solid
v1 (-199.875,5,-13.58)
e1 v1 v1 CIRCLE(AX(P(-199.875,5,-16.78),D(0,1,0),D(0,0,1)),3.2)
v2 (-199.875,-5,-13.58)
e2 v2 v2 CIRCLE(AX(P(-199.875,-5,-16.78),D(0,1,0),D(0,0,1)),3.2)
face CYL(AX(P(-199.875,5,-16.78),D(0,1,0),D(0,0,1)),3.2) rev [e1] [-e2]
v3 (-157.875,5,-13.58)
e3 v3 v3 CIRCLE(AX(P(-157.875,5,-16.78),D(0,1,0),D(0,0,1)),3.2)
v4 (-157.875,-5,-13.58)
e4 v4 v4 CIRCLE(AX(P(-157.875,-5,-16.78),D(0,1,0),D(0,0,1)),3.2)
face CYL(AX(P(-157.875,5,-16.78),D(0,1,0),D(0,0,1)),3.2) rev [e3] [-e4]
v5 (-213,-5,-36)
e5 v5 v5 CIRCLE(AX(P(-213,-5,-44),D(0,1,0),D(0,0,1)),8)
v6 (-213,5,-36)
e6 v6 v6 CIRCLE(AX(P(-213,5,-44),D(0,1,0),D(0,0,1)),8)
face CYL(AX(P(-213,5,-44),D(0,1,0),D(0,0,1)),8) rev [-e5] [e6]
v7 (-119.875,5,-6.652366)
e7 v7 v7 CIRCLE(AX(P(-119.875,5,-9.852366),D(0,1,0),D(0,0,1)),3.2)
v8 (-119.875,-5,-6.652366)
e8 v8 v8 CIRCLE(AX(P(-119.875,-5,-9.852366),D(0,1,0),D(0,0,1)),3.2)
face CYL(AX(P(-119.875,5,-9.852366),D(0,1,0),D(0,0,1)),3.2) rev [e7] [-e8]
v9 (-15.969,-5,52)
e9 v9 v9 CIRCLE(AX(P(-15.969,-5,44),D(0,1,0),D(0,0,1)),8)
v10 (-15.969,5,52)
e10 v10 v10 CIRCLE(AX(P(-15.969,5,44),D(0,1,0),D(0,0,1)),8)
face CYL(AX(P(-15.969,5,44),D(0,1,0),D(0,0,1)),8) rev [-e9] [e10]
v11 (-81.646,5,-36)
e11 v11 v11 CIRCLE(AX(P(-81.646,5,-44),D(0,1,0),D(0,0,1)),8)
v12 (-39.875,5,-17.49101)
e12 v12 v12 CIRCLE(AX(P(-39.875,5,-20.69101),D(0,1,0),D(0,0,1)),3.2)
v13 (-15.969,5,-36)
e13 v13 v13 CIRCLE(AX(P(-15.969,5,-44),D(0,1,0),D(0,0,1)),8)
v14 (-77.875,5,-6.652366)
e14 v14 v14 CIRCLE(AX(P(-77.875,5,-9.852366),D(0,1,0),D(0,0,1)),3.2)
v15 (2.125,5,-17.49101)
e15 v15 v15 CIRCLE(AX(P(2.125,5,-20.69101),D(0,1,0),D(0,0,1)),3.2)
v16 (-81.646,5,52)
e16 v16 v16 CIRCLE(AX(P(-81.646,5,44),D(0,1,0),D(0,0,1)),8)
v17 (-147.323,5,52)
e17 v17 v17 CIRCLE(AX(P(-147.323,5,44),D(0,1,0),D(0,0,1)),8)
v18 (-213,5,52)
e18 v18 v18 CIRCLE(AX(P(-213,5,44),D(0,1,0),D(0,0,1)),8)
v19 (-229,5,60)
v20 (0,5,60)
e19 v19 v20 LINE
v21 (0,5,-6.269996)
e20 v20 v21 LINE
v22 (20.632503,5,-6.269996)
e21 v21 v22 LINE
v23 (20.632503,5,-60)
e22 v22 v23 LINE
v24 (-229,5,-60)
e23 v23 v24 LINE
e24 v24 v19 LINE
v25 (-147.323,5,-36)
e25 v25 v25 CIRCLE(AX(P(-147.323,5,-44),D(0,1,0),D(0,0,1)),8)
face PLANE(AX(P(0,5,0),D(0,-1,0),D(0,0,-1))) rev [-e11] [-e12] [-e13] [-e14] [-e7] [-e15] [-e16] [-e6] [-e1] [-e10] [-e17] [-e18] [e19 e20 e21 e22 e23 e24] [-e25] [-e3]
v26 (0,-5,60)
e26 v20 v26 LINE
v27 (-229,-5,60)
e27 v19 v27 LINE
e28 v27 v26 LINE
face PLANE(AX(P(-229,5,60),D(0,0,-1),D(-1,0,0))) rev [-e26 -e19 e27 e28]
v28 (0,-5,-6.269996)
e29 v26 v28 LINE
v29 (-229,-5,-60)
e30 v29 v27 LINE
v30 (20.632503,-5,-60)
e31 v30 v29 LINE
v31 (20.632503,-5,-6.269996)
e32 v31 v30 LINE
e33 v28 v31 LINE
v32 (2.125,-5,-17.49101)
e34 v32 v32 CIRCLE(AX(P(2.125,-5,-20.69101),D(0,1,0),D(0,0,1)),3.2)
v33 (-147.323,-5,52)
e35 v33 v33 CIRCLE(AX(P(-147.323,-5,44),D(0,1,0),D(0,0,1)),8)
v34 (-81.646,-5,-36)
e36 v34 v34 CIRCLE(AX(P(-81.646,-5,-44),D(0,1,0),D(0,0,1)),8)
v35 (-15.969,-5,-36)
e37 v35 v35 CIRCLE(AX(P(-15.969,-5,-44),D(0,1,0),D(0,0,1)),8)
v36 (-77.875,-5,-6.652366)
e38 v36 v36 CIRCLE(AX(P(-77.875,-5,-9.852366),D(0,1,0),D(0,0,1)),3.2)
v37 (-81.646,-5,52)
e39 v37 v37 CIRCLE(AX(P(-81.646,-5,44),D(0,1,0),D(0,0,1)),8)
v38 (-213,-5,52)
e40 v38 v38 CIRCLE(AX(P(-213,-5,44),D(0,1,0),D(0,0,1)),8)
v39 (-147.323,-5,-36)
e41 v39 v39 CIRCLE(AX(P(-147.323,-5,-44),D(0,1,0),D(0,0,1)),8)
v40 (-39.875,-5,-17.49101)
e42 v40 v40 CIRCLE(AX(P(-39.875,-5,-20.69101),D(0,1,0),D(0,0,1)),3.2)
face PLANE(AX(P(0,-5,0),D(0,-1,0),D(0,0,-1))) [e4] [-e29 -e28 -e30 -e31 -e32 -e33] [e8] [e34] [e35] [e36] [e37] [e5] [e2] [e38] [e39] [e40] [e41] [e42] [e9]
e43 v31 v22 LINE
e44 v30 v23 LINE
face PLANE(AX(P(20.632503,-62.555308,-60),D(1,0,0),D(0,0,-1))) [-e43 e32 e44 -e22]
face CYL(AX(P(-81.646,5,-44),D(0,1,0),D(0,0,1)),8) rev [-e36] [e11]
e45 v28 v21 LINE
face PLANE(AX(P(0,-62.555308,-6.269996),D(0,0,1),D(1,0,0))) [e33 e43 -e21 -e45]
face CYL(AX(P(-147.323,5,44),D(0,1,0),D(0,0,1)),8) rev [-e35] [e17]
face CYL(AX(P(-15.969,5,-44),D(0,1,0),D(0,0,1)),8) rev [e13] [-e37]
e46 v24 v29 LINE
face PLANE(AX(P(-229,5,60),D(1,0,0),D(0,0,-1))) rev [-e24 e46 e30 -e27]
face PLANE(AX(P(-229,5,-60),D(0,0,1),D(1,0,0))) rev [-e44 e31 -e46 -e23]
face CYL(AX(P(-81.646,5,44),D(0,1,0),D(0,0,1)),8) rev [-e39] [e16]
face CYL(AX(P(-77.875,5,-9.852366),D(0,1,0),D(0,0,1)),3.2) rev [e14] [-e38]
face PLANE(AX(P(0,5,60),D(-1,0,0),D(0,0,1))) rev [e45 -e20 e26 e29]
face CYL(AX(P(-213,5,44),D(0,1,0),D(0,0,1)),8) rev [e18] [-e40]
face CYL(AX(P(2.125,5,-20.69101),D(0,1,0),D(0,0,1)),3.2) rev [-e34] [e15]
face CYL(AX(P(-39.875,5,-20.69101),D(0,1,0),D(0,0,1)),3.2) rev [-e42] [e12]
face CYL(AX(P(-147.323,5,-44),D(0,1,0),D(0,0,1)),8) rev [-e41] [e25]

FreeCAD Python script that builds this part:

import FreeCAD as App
import Part
import Sketcher

doc = App.newDocument("Part")
body = doc.addObject("PartDesign::Body", "Body")

sketch1 = body.newObject("Sketcher::SketchObject", "Sketch")
sketch1.AttachmentSupport = (doc.getObject("XZ_Plane"), [""])
sketch1.MapMode = "FlatFace"
sketch1.addGeometry(Part.LineSegment(App.Vector(-229, -60, 0), App.Vector(-229, 60, 0)), False)
sketch1.addGeometry(Part.LineSegment(App.Vector(-229, 60, 0), App.Vector(0, 60, 0)), False)
sketch1.addGeometry(Part.LineSegment(App.Vector(0, 60, 0), App.Vector(0, -60, 0)), False)
sketch1.addGeometry(Part.LineSegment(App.Vector(0, -60, 0), App.Vector(-229, -60, 0)), False)
sketch1.addConstraint(Sketcher.Constraint("Coincident", 0, 2, 1, 1))
sketch1.addConstraint(Sketcher.Constraint("Coincident", 1, 2, 2, 1))
sketch1.addConstraint(Sketcher.Constraint("Coincident", 2, 2, 3, 1))
sketch1.addConstraint(Sketcher.Constraint("Coincident", 3, 2, 0, 1))
sketch1.addConstraint(Sketcher.Constraint("Vertical", 0))
sketch1.addConstraint(Sketcher.Constraint("Horizontal", 1))
sketch1.addConstraint(Sketcher.Constraint("Vertical", 2))
sketch1.addConstraint(Sketcher.Constraint("Horizontal", 3))
sketch1.addConstraint(Sketcher.Constraint("Symmetric", 1, 2, 2, 2, -1, 1))
sketch1.addConstraint(Sketcher.Constraint("DistanceX", 1, 1, 1, 2, 229.0))
sketch1.addConstraint(Sketcher.Constraint("DistanceY", 0, 1, 0, 2, 120.0))
pad1 = body.newObject("PartDesign::Pad", "Pad")
pad1.Profile = sketch1
pad1.Length = 10
pad1.Midplane = True

sketch2 = body.newObject("Sketcher::SketchObject", "Sketch001")
sketch2.AttachmentSupport = (doc.getObject("XZ_Plane"), [""])
sketch2.MapMode = "FlatFace"
sketch2.AttachmentOffset = App.Placement(App.Vector(0, 0, -5), App.Rotation())
sketch2.addGeometry(Part.LineSegment(App.Vector(0, -60, 0), App.Vector(0, -6, 0)), False)
sketch2.addGeometry(Part.LineSegment(App.Vector(0, -6, 0), App.Vector(21, -6, 0)), False)
sketch2.addGeometry(Part.LineSegment(App.Vector(21, -6, 0), App.Vector(21, -60, 0)), False)
sketch2.addGeometry(Part.LineSegment(App.Vector(21, -60, 0), App.Vector(0, -60, 0)), False)
sketch2.addConstraint(Sketcher.Constraint("Coincident", 0, 2, 1, 1))
sketch2.addConstraint(Sketcher.Constraint("Coincident", 1, 2, 2, 1))
sketch2.addConstraint(Sketcher.Constraint("Coincident", 2, 2, 3, 1))
sketch2.addConstraint(Sketcher.Constraint("Coincident", 3, 2, 0, 1))
sketch2.addConstraint(Sketcher.Constraint("Vertical", 0))
sketch2.addConstraint(Sketcher.Constraint("Horizontal", 1))
sketch2.addConstraint(Sketcher.Constraint("Vertical", 2))
sketch2.addConstraint(Sketcher.Constraint("Horizontal", 3))
sketch2.addConstraint(Sketcher.Constraint("PointOnObject", 0, 2, -2))
sketch2.addConstraint(Sketcher.Constraint("DistanceY", 2, 2, -1, 1, 60.0))
sketch2.addConstraint(Sketcher.Constraint("DistanceX", 1, 1, 1, 2, 20.632503))
sketch2.addConstraint(Sketcher.Constraint("DistanceY", 0, 1, 0, 2, 53.730004))
pad2 = body.newObject("PartDesign::Pad", "Pad001")
pad2.Profile = sketch2
pad2.Length = 10

sketch3 = body.newObject("Sketcher::SketchObject", "Sketch002")
sketch3.AttachmentSupport = (doc.getObject("XZ_Plane"), [""])
sketch3.MapMode = "FlatFace"
sketch3.AttachmentOffset = App.Placement(App.Vector(0, 0, -5), App.Rotation())
sketch3.addGeometry(Part.Circle(App.Vector(-213, -44, 0), App.Vector(0, 0, 1), 8), False)
sketch3.addGeometry(Part.Circle(App.Vector(-147, -44, 0), App.Vector(0, 0, 1), 8), False)
sketch3.addGeometry(Part.Circle(App.Vector(-82, -44, 0), App.Vector(0, 0, 1), 8), False)
sketch3.addGeometry(Part.Circle(App.Vector(-16, -44, 0), App.Vector(0, 0, 1), 8), False)
sketch3.addGeometry(Part.Circle(App.Vector(-213, 44, 0), App.Vector(0, 0, 1), 8), False)
sketch3.addGeometry(Part.Circle(App.Vector(-147, 44, 0), App.Vector(0, 0, 1), 8), False)
sketch3.addGeometry(Part.Circle(App.Vector(-82, 44, 0), App.Vector(0, 0, 1), 8), False)
sketch3.addGeometry(Part.Circle(App.Vector(-16, 44, 0), App.Vector(0, 0, 1), 8), False)
sketch3.addConstraint(Sketcher.Constraint("Equal", 0, 1))
sketch3.addConstraint(Sketcher.Constraint("Equal", 1, 2))
sketch3.addConstraint(Sketcher.Constraint("Equal", 2, 3))
sketch3.addConstraint(Sketcher.Constraint("Equal", 3, 4))
sketch3.addConstraint(Sketcher.Constraint("Equal", 4, 5))
sketch3.addConstraint(Sketcher.Constraint("Equal", 5, 6))
sketch3.addConstraint(Sketcher.Constraint("Equal", 6, 7))
sketch3.addConstraint(Sketcher.Constraint("Symmetric", 0, 3, 4, 3, -1))
sketch3.addConstraint(Sketcher.Constraint("Symmetric", 1, 3, 5, 3, -1))
sketch3.addConstraint(Sketcher.Constraint("Symmetric", 2, 3, 6, 3, -1))
sketch3.addConstraint(Sketcher.Constraint("Symmetric", 3, 3, 7, 3, -1))
sketch3.addConstraint(Sketcher.Constraint("Horizontal", 0, 3, 1, 3))
sketch3.addConstraint(Sketcher.Constraint("Horizontal", 1, 3, 2, 3))
sketch3.addConstraint(Sketcher.Constraint("Horizontal", 2, 3, 3, 3))
sketch3.addConstraint(Sketcher.Constraint("Diameter", 0, 16.0))
sketch3.addConstraint(Sketcher.Constraint("DistanceX", 0, 3, -1, 1, 213.0))
sketch3.addConstraint(Sketcher.Constraint("DistanceY", 0, 3, -1, 1, 44.0))
sketch3.addConstraint(Sketcher.Constraint("DistanceX", 1, 3, -1, 1, 147.323))
sketch3.addConstraint(Sketcher.Constraint("DistanceX", 2, 3, -1, 1, 81.646))
sketch3.addConstraint(Sketcher.Constraint("DistanceX", 3, 3, -1, 1, 15.969))
doc.recompute()
hole = body.newObject("PartDesign::Hole", "Hole")
hole.Profile = sketch3
hole.ThreadType = "None"
hole.Diameter = 16
hole.DepthType = "ThroughAll"
hole.Reversed = True

sketch4 = body.newObject("Sketcher::SketchObject", "Sketch003")
sketch4.AttachmentSupport = (doc.getObject("XZ_Plane"), [""])
sketch4.MapMode = "FlatFace"
sketch4.AttachmentOffset = App.Placement(App.Vector(0, 0, -5), App.Rotation())
sketch4.addGeometry(Part.Circle(App.Vector(-199.9, -16.8, 0), App.Vector(0, 0, 1), 3.2), False)
sketch4.addGeometry(Part.Circle(App.Vector(-157.9, -16.8, 0), App.Vector(0, 0, 1), 3.2), False)
sketch4.addGeometry(Part.Circle(App.Vector(-119.9, -9.9, 0), App.Vector(0, 0, 1), 3.2), False)
sketch4.addGeometry(Part.Circle(App.Vector(-77.9, -9.9, 0), App.Vector(0, 0, 1), 3.2), False)
sketch4.addGeometry(Part.Circle(App.Vector(-39.9, -20.7, 0), App.Vector(0, 0, 1), 3.2), False)
sketch4.addGeometry(Part.Circle(App.Vector(2.1, -20.7, 0), App.Vector(0, 0, 1), 3.2), False)
sketch4.addConstraint(Sketcher.Constraint("Equal", 0, 1))
sketch4.addConstraint(Sketcher.Constraint("Equal", 1, 2))
sketch4.addConstraint(Sketcher.Constraint("Equal", 2, 3))
sketch4.addConstraint(Sketcher.Constraint("Equal", 3, 4))
sketch4.addConstraint(Sketcher.Constraint("Equal", 4, 5))
sketch4.addConstraint(Sketcher.Constraint("Horizontal", 0, 3, 1, 3))
sketch4.addConstraint(Sketcher.Constraint("Horizontal", 2, 3, 3, 3))
sketch4.addConstraint(Sketcher.Constraint("Horizontal", 4, 3, 5, 3))
sketch4.addConstraint(Sketcher.Constraint("Diameter", 0, 6.4))
sketch4.addConstraint(Sketcher.Constraint("DistanceX", 0, 3, 1, 3, 42.0))
sketch4.addConstraint(Sketcher.Constraint("DistanceX", 1, 3, 2, 3, 38.0))
sketch4.addConstraint(Sketcher.Constraint("DistanceX", 2, 3, 3, 3, 42.0))
sketch4.addConstraint(Sketcher.Constraint("DistanceX", 3, 3, 4, 3, 38.0))
sketch4.addConstraint(Sketcher.Constraint("DistanceX", 4, 3, 5, 3, 42.0))
sketch4.addConstraint(Sketcher.Constraint("DistanceY", 0, 3, -1, 1, 16.78))
sketch4.addConstraint(Sketcher.Constraint("DistanceX", 0, 3, -1, 1, 199.875))
sketch4.addConstraint(Sketcher.Constraint("DistanceY", 4, 3, -1, 1, 20.69101))
sketch4.addConstraint(Sketcher.Constraint("DistanceY", 2, 3, -1, 1, 9.852366))
doc.recompute()
hole2 = body.newObject("PartDesign::Hole", "Hole001")
hole2.Profile = sketch4
hole2.ThreadType = "None"
hole2.Diameter = 6.4
hole2.DepthType = "ThroughAll"
hole2.Reversed = True

doc.recompute()
